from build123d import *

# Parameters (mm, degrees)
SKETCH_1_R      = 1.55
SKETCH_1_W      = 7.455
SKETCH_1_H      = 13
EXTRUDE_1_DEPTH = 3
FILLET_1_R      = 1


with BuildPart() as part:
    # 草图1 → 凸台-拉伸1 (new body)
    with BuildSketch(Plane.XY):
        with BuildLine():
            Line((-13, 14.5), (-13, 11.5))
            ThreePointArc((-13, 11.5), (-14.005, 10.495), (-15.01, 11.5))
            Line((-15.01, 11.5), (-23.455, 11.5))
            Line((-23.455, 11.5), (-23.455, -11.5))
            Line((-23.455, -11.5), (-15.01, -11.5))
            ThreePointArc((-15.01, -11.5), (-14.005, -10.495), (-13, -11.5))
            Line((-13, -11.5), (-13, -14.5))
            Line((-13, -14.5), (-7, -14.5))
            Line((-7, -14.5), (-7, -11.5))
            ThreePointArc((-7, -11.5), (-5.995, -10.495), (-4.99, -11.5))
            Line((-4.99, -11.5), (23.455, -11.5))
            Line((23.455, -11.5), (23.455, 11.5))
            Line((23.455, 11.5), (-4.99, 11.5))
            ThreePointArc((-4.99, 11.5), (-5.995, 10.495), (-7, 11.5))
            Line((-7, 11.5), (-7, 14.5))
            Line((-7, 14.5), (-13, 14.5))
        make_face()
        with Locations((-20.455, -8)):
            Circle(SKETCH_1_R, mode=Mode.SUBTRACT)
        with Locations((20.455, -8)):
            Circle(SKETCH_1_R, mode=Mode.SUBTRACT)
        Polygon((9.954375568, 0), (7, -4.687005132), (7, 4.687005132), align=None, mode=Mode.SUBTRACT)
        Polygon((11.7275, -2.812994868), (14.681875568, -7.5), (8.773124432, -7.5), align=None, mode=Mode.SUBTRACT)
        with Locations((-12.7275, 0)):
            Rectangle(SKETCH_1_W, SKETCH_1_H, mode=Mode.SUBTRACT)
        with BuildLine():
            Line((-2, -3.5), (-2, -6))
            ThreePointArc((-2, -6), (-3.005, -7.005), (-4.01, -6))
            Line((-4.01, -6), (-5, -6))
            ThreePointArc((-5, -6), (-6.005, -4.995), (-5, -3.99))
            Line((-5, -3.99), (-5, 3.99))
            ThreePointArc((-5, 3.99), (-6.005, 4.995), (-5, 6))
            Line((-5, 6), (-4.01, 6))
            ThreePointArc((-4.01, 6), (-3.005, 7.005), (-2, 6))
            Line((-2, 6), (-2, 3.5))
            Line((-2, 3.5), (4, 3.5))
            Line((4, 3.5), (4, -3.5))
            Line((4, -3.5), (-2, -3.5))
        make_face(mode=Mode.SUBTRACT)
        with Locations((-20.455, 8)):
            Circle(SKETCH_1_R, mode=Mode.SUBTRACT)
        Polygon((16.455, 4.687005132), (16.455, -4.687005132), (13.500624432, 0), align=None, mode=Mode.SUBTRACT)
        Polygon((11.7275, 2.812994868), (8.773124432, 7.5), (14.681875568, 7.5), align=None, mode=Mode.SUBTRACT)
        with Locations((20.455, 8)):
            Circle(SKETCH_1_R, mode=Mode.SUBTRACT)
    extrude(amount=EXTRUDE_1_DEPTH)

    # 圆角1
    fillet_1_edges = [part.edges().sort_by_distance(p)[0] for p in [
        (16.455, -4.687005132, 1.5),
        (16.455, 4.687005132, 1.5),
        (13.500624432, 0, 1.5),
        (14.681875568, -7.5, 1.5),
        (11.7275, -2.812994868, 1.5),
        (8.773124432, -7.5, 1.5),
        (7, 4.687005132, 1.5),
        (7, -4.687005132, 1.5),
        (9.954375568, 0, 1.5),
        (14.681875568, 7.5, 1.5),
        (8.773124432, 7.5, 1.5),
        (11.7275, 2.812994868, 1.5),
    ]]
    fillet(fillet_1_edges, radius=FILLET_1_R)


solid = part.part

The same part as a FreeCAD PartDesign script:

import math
import FreeCAD as App
import Part
import Sketcher
from FreeCAD import Vector
Q = App.Units.Quantity


def edges_at(feature, points):
    """Names of the edges that pass closest to the given points."""
    edges = feature.Shape.Edges
    near = lambda p: min(range(len(edges)), key=lambda i: edges[i].distToShape(Part.Vertex(*p))[0])
    return sorted({f"Edge{near(p) + 1}" for p in points})


def add_polygon(sketch, points):
    """Adds a closed chain of lines whose ends are joined by coincident constraints."""
    first, n = sketch.GeometryCount, len(points)
    for a, b in zip(points, points[1:] + points[:1]):
        sketch.addGeometry(Part.LineSegment(App.Vector(*a, 0), App.Vector(*b, 0)), False)
    for i in range(n):
        sketch.addConstraint(Sketcher.Constraint("Coincident", first + i, 2, first + (i + 1) % n, 1))

doc = App.newDocument("Part")
body = doc.addObject("PartDesign::Body", "Body")

# Sketch on XY plane
sketch1 = doc.addObject("Sketcher::SketchObject", "Sketch")
body.addObject(sketch1)
sketch1.AttachmentSupport = (doc.XY_Plane, [""])
sketch1.MapMode = "FlatFace"
sketch1.addGeometry(Part.LineSegment(Vector(-13, 14.5, 0), Vector(-13, 11.5, 0)), False)  # 0
sketch1.addGeometry(Part.ArcOfCircle(Part.Circle(Vector(-14, 11.5, 0), Vector(0, 0, 1), 1), math.radians(180), math.radians(360)), False)  # 1
sketch1.addGeometry(Part.LineSegment(Vector(-15, 11.5, 0), Vector(-23.5, 11.5, 0)), False)  # 2
sketch1.addGeometry(Part.LineSegment(Vector(-23.5, 11.5, 0), Vector(-23.5, -11.5, 0)), False)  # 3
sketch1.addGeometry(Part.LineSegment(Vector(-23.5, -11.5, 0), Vector(-15, -11.5, 0)), False)  # 4
sketch1.addGeometry(Part.ArcOfCircle(Part.Circle(Vector(-14, -11.5, 0), Vector(0, 0, 1), 1), math.radians(0), math.radians(180)), False)  # 5
sketch1.addGeometry(Part.LineSegment(Vector(-13, -11.5, 0), Vector(-13, -14.5, 0)), False)  # 6
sketch1.addGeometry(Part.LineSegment(Vector(-13, -14.5, 0), Vector(-7, -14.5, 0)), False)  # 7
sketch1.addGeometry(Part.LineSegment(Vector(-7, -14.5, 0), Vector(-7, -11.5, 0)), False)  # 8
sketch1.addGeometry(Part.ArcOfCircle(Part.Circle(Vector(-6, -11.5, 0), Vector(0, 0, 1), 1), math.radians(0), math.radians(180)), False)  # 9
sketch1.addGeometry(Part.LineSegment(Vector(-5, -11.5, 0), Vector(23.5, -11.5, 0)), False)  # 10
sketch1.addGeometry(Part.LineSegment(Vector(23.5, -11.5, 0), Vector(23.5, 11.5, 0)), False)  # 11
sketch1.addGeometry(Part.LineSegment(Vector(23.5, 11.5, 0), Vector(-5, 11.5, 0)), False)  # 12
sketch1.addGeometry(Part.ArcOfCircle(Part.Circle(Vector(-6, 11.5, 0), Vector(0, 0, 1), 1), math.radians(180), math.radians(360)), False)  # 13
sketch1.addGeometry(Part.LineSegment(Vector(-7, 11.5, 0), Vector(-7, 14.5, 0)), False)  # 14
sketch1.addGeometry(Part.LineSegment(Vector(-7, 14.5, 0), Vector(-13, 14.5, 0)), False)  # 15
sketch1.addGeometry(Part.Circle(Vector(-20.5, -8, 0), Vector(0, 0, 1), 1.6), False)  # 16
add_polygon(sketch1, [(-9, -6.5), (-16.5, -6.5), (-16.5, 6.5), (-9, 6.5)])  # lines 17-20
sketch1.addGeometry(Part.LineSegment(Vector(4, -3.5, 0), Vector(-2, -3.5, 0)), False)  # 21
sketch1.addGeometry(Part.LineSegment(Vector(-2, -3.5, 0), Vector(-2, -6, 0)), False)  # 22
sketch1.addGeometry(Part.ArcOfCircle(Part.Circle(Vector(-3, -6, 0), Vector(0, 0, 1), 1), math.radians(180), math.radians(360)), False)  # 23
sketch1.addGeometry(Part.LineSegment(Vector(-4, -6, 0), Vector(-5, -6, 0)), False)  # 24
sketch1.addGeometry(Part.ArcOfCircle(Part.Circle(Vector(-5, -5, 0), Vector(0, 0, 1), 1), math.radians(90), math.radians(270)), False)  # 25
sketch1.addGeometry(Part.LineSegment(Vector(-5, -4, 0), Vector(-5, 4, 0)), False)  # 26
sketch1.addGeometry(Part.ArcOfCircle(Part.Circle(Vector(-5, 5, 0), Vector(0, 0, 1), 1), math.radians(90), math.radians(270)), False)  # 27
sketch1.addGeometry(Part.LineSegment(Vector(-5, 6, 0), Vector(-4, 6, 0)), False)  # 28
sketch1.addGeometry(Part.ArcOfCircle(Part.Circle(Vector(-3, 6, 0), Vector(0, 0, 1), 1), math.radians(0), math.radians(180)), False)  # 29
sketch1.addGeometry(Part.LineSegment(Vector(-2, 6, 0), Vector(-2, 3.5, 0)), False)  # 30
sketch1.addGeometry(Part.LineSegment(Vector(-2, 3.5, 0), Vector(4, 3.5, 0)), False)  # 31
sketch1.addGeometry(Part.LineSegment(Vector(4, 3.5, 0), Vector(4, -3.5, 0)), False)  # 32
sketch1.addGeometry(Part.Circle(Vector(20.5, -8, 0), Vector(0, 0, 1), 1.6), False)  # 33
add_polygon(sketch1, [(8.8, -7.5), (11.7, -2.8), (14.7, -7.5)])  # lines 34-36
add_polygon(sketch1, [(7, 4.7), (10, 0), (7, -4.7)])  # lines 37-39
add_polygon(sketch1, [(13.5, 0), (16.5, 4.7), (16.5, -4.7)])  # lines 40-42
sketch1.addGeometry(Part.Circle(Vector(-20.5, 8, 0), Vector(0, 0, 1), 1.6), False)  # 43
add_polygon(sketch1, [(14.7, 7.5), (11.7, 2.8), (8.8, 7.5)])  # lines 44-46
sketch1.addGeometry(Part.Circle(Vector(20.5, 8, 0), Vector(0, 0, 1), 1.6), False)  # 47
sketch1.addConstraint([
    Sketcher.Constraint("Tangent", 0, 2, 1, 2),
    Sketcher.Constraint("Coincident", 1, 1, 2, 1),
    Sketcher.Constraint("Coincident", 2, 2, 3, 1),
    Sketcher.Constraint("Coincident", 3, 2, 4, 1),
    Sketcher.Constraint("Coincident", 4, 2, 5, 2),
    Sketcher.Constraint("Tangent", 5, 1, 6, 1),
    Sketcher.Constraint("Coincident", 6, 2, 7, 1),
    Sketcher.Constraint("Coincident", 7, 2, 8, 1),
    Sketcher.Constraint("Tangent", 8, 2, 9, 2),
    Sketcher.Constraint("Coincident", 9, 1, 10, 1),
    Sketcher.Constraint("Coincident", 10, 2, 11, 1),
    Sketcher.Constraint("Coincident", 11, 2, 12, 1),
    Sketcher.Constraint("Coincident", 12, 2, 13, 2),
    Sketcher.Constraint("Tangent", 13, 1, 14, 1),
    Sketcher.Constraint("Coincident", 14, 2, 15, 1),
    Sketcher.Constraint("Coincident", 15, 2, 0, 1),
    Sketcher.Constraint("Coincident", 21, 2, 22, 1),
    Sketcher.Constraint("Tangent", 22, 2, 23, 2),
    Sketcher.Constraint("Coincident", 23, 1, 24, 1),
    Sketcher.Constraint("Tangent", 24, 2, 25, 2),
    Sketcher.Constraint("Coincident", 25, 1, 26, 1),
    Sketcher.Constraint("Coincident", 26, 2, 27, 2),
    Sketcher.Constraint("Tangent", 27, 1, 28, 1),
    Sketcher.Constraint("Coincident", 28, 2, 29, 2),
    Sketcher.Constraint("Tangent", 29, 1, 30, 1),
    Sketcher.Constraint("Coincident", 30, 2, 31, 1),
    Sketcher.Constraint("Coincident", 31, 2, 32, 1),
    Sketcher.Constraint("Coincident", 32, 2, 21, 1),
    Sketcher.Constraint("Vertical", 0),
    Sketcher.Constraint("Horizontal", 2),
    Sketcher.Constraint("Vertical", 3),
    Sketcher.Constraint("Horizontal", 4),
    Sketcher.Constraint("Vertical", 6),
    Sketcher.Constraint("Horizontal", 7),
    Sketcher.Constraint("Vertical", 8),
    Sketcher.Constraint("Horizontal", 10),
    Sketcher.Constraint("Vertical", 11),
    Sketcher.Constraint("Horizontal", 12),
    Sketcher.Constraint("Vertical", 14),
    Sketcher.Constraint("Horizontal", 15),
    Sketcher.Constraint("Horizontal", 17),
    Sketcher.Constraint("Vertical", 18),
    Sketcher.Constraint("Horizontal", 19),
    Sketcher.Constraint("Vertical", 20),
    Sketcher.Constraint("Horizontal", 21),
    Sketcher.Constraint("Vertical", 22),
    Sketcher.Constraint("Horizontal", 24),
    Sketcher.Constraint("Vertical", 26),
    Sketcher.Constraint("Horizontal", 28),
    Sketcher.Constraint("Vertical", 30),
    Sketcher.Constraint("Horizontal", 31),
    Sketcher.Constraint("Vertical", 32),
    Sketcher.Constraint("Horizontal", 36),
    Sketcher.Constraint("Vertical", 39),
    Sketcher.Constraint("Vertical", 41),
    Sketcher.Constraint("Horizontal", 46),
    Sketcher.Constraint("Equal", 1, 5),
    Sketcher.Constraint("Equal", 5, 9),
    Sketcher.Constraint("Equal", 9, 13),
    Sketcher.Constraint("Equal", 13, 23),
    Sketcher.Constraint("Equal", 23, 25),
    Sketcher.Constraint("Equal", 25, 27),
    Sketcher.Constraint("Equal", 27, 29),
    Sketcher.Constraint("Equal", 16, 33),
    Sketcher.Constraint("Equal", 33, 43),
    Sketcher.Constraint("Equal", 43, 47),
    Sketcher.Constraint("Symmetric", 33, 3, 43, 3, -1, 1),
    Sketcher.Constraint("Symmetric", 16, 3, 47, 3, -1, 1),
    Sketcher.Constraint("Symmetric", 2, 2, 10, 2, -1, 1),
    Sketcher.Constraint("Symmetric", 16, 3, 33, 3, -2),
    Sketcher.Constraint("Symmetric", 1, 3, 5, 3, -1),
    Sketcher.Constraint("Symmetric", 9, 3, 13, 3, -1),
    Sketcher.Constraint("Symmetric", 25, 3, 27, 3, -1),
    Sketcher.Constraint("Symmetric", 23, 3, 29, 3, -1),
    Sketcher.Constraint("Symmetric", 34, 2, 44, 2, -1),
    Sketcher.Constraint("Symmetric", 36, 2, 45, 2, -1),
    Sketcher.Constraint("PointOnObject", 37, 2, -1),
    Sketcher.Constraint("PointOnObject", 42, 2, -1),
    Sketcher.Constraint("Parallel", 35, 37),
    Sketcher.Constraint("Parallel", 34, 38),
    Sketcher.Constraint("Parallel", 38, 40),
    Sketcher.Constraint("Parallel", 37, 42),
    Sketcher.Constraint("Parallel", 40, 44),
    Sketcher.Constraint("Parallel", 42, 45),
    Sketcher.Constraint("Horizontal", 5, 3, 9, 3),
    Sketcher.Constraint("Horizontal", 0, 2, 1, 1),
    Sketcher.Constraint("Horizontal", 9, 3, 3, 2),
    Sketcher.Constraint("Horizontal", 2, 2, 11, 2),
    Sketcher.Constraint("Horizontal", 22, 2, 23, 1),
    Sketcher.Constraint("Horizontal", 39, 2, 40, 2),
    Sketcher.Constraint("Vertical", 24, 2, 25, 1),
    Sketcher.Constraint("Equal", 15, 21),
    Sketcher.Constraint("Equal", 0, 6),
    Sketcher.Constraint("Equal", 22, 30),
    Sketcher.Constraint("Equal", 35, 37),
    Sketcher.Constraint("Diameter", 16, Q("3.1 mm")),
    Sketcher.Constraint("DistanceX", 7, 1, 7, 2, Q("6 mm")),
    Sketcher.Constraint("DistanceY", 0, 2, 0, 1, Q("3 mm")),
    Sketcher.Constraint("DistanceY", 3, 2, 3, 1, Q("23 mm")),
    Sketcher.Constraint("DistanceY", 18, 1, 18, 2, Q("13 mm")),
    Sketcher.Constraint("DistanceY", 32, 2, 32, 1, Q("7 mm")),
    Sketcher.Constraint("DistanceY", 22, 2, 22, 1, Q("2.5 mm")),
    Sketcher.Constraint("DistanceY", 16, 3, -1, 1, Q("8 mm")),
    Sketcher.Constraint("DistanceX", 25, 3, -1, 1, Q("5 mm")),
    Sketcher.Constraint("DistanceX", 0, 2, -1, 1, Q("13 mm")),
    Sketcher.Constraint("DistanceX", 19, 2, -1, 1, Q("9 mm")),
    Sketcher.Constraint("DistanceX", 21, 2, -1, 1, Q("2 mm")),
    Sketcher.Constraint("DistanceX", -1, 1, 38, 2, Q("7 mm")),
    Sketcher.Constraint("Radius", 1, Q("1.005 mm")),
    Sketcher.Constraint("DistanceX", 2, 2, 43, 3, Q("3 mm")),
    Sketcher.Constraint("DistanceX", 16, 3, 17, 2, Q("4 mm")),
    Sketcher.Constraint("DistanceY", 4, 2, 17, 2, Q("5 mm")),
    Sketcher.Constraint("DistanceY", 10, 2, 35, 2, Q("4 mm")),
    Sketcher.Constraint("DistanceX", 40, 2, 47, 3, Q("4 mm")),
    Sketcher.Constraint("DistanceX", 2, 2, 2, 1, Q("8.445 mm")),
    Sketcher.Constraint("DistanceX", 36, 2, 36, 1, Q("5.908751 mm")),
    Sketcher.Constraint("DistanceY", 39, 1, 39, 2, Q("9.37401 mm")),
    Sketcher.Constraint("DistanceX", -1, 1, 34, 2, Q("11.7275 mm")),
])
pad1 = doc.addObject("PartDesign::Pad", "Pad")
body.addObject(pad1)
pad1.Profile = sketch1
pad1.Length = 3
doc.recompute()

fillet = doc.addObject("PartDesign::Fillet", "Fillet")
body.addObject(fillet)
fillet.Base = (pad1, edges_at(pad1, [
    (16.455, -4.687, 1.5),
    (16.455, 4.687, 1.5),
    (13.501, 0, 1.5),
    (14.682, -7.5, 1.5),
    (11.727, -2.813, 1.5),
    (8.773, -7.5, 1.5),
    (7, 4.687, 1.5),
    (7, -4.687, 1.5),
    (9.954, 0, 1.5),
    (14.682, 7.5, 1.5),
    (8.773, 7.5, 1.5),
    (11.727, 2.813, 1.5),
]))
fillet.Radius = 1

doc.recompute()
